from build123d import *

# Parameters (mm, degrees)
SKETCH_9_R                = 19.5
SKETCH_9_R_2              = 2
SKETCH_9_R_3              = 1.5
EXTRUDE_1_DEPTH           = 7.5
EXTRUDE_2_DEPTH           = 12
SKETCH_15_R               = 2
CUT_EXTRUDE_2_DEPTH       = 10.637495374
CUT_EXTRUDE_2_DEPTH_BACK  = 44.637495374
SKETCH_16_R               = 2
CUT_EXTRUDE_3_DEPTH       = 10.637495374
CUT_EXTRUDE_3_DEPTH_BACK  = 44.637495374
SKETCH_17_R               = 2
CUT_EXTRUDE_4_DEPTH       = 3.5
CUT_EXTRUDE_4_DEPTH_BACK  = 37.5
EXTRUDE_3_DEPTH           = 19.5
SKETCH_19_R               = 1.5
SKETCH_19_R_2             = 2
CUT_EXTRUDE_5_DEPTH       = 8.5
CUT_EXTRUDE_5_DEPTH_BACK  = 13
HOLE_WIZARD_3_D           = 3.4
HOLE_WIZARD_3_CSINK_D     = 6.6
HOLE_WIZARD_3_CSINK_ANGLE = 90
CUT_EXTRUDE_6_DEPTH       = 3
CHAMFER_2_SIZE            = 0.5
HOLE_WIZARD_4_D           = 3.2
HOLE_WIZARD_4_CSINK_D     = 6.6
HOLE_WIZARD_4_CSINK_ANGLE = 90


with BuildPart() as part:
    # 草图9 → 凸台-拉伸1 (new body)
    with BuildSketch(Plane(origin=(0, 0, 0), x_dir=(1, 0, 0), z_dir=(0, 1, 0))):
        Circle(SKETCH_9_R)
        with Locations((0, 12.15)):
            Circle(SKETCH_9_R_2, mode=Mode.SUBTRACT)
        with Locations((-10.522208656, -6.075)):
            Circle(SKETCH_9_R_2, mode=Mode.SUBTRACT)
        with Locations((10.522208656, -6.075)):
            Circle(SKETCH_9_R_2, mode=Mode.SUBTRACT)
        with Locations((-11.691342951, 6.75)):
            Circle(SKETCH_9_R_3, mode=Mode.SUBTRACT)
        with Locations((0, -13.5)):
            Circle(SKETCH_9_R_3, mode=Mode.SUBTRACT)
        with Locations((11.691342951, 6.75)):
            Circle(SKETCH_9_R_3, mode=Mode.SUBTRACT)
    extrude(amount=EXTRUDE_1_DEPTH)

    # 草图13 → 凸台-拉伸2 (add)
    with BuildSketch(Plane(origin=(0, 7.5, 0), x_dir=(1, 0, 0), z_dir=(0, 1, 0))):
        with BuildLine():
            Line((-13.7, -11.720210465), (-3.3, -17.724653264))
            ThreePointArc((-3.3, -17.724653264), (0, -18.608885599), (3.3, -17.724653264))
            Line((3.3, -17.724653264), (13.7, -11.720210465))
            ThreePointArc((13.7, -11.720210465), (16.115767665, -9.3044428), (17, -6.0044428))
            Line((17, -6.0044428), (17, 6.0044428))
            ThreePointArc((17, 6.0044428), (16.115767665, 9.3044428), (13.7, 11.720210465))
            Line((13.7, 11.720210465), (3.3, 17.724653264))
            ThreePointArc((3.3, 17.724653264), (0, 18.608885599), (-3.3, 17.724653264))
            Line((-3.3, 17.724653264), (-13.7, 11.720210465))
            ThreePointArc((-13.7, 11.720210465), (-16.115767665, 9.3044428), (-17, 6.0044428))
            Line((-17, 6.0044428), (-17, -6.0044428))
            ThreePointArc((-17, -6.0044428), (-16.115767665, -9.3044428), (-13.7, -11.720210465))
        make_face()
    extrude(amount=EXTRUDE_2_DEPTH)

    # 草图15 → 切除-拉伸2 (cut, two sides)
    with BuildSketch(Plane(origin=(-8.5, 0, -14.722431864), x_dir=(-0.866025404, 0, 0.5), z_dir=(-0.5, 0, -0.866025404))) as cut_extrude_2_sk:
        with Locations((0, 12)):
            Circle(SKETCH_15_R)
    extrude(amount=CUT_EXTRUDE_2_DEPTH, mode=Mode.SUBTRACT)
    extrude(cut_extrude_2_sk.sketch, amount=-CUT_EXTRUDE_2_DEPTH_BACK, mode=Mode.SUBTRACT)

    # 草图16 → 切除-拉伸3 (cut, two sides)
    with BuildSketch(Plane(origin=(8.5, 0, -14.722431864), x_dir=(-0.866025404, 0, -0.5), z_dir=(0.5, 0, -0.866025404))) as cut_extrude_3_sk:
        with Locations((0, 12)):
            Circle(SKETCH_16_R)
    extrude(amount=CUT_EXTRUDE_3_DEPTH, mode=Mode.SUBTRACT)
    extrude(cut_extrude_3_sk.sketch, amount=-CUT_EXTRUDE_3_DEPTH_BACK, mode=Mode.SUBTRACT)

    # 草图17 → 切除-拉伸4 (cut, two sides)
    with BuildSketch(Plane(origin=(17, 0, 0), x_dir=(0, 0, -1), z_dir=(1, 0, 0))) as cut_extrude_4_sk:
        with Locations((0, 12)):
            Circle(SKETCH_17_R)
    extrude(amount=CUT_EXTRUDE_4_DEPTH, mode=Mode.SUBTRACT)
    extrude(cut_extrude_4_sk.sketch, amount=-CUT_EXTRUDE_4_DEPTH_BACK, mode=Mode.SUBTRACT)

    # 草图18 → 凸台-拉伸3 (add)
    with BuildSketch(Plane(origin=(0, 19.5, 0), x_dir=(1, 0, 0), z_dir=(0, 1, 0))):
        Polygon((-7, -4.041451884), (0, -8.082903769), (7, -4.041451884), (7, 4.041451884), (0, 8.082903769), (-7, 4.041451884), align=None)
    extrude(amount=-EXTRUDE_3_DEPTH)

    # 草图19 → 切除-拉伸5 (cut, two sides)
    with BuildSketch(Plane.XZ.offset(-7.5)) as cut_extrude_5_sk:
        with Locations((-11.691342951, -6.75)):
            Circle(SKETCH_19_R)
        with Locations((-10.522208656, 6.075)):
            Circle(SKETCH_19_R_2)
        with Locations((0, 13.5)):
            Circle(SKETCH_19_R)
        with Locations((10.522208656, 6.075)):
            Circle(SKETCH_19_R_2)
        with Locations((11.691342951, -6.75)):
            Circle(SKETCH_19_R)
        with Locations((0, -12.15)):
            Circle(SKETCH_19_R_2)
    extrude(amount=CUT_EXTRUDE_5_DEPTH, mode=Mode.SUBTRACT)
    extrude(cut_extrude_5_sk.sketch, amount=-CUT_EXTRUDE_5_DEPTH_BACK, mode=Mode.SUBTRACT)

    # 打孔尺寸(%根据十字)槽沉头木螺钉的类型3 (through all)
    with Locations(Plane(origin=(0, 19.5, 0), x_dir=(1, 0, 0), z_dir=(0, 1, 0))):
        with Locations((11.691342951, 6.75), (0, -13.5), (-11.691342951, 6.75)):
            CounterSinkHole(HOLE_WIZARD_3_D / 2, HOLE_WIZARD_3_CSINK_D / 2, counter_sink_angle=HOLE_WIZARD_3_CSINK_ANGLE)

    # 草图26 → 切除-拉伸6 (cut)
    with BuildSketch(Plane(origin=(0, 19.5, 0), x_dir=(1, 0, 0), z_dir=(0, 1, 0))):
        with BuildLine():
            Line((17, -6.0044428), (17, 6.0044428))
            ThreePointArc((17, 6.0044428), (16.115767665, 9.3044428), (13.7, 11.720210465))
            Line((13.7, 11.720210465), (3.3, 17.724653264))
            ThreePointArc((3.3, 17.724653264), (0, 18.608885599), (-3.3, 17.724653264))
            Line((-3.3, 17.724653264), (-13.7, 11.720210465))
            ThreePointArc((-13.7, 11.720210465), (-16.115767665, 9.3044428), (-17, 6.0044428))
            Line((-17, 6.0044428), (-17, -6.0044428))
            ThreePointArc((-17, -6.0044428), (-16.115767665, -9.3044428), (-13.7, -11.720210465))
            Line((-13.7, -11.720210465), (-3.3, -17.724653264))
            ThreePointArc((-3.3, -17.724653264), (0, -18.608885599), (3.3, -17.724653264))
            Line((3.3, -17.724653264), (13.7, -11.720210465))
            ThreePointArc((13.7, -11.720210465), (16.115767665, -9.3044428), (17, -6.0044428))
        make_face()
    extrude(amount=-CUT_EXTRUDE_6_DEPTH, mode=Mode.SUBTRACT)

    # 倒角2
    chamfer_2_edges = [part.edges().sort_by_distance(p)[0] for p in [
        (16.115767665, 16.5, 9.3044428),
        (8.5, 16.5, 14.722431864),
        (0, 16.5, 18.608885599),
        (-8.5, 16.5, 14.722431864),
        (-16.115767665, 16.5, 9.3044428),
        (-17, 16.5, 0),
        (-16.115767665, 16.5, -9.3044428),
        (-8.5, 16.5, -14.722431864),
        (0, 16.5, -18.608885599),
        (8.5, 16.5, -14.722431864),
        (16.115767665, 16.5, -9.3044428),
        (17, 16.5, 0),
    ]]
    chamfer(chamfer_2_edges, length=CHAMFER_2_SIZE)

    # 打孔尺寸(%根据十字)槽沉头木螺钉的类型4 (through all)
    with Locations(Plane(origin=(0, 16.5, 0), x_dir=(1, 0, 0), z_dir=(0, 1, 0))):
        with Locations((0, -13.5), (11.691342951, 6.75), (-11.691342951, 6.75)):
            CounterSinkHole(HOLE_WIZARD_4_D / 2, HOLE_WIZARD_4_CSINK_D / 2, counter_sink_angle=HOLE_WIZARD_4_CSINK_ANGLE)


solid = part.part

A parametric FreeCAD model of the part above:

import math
import FreeCAD as App
import Part
import Sketcher
from FreeCAD import Vector
Q = App.Units.Quantity


def edges_at(feature, points):
    """Names of the edges that pass closest to the given points."""
    edges = feature.Shape.Edges
    near = lambda p: min(range(len(edges)), key=lambda i: edges[i].distToShape(Part.Vertex(*p))[0])
    return sorted({f"Edge{near(p) + 1}" for p in points})


def add_polygon(sketch, points):
    """Adds a closed chain of lines whose ends are joined by coincident constraints."""
    first, n = sketch.GeometryCount, len(points)
    for a, b in zip(points, points[1:] + points[:1]):
        sketch.addGeometry(Part.LineSegment(App.Vector(*a, 0), App.Vector(*b, 0)), False)
    for i in range(n):
        sketch.addConstraint(Sketcher.Constraint("Coincident", first + i, 2, first + (i + 1) % n, 1))

doc = App.newDocument("Part")
params = doc.addObject("Spreadsheet::Sheet", "Params")
for row, (alias, value) in enumerate([
    ("sketch1_diameter", "39 mm"),
    ("sketch1_diameter2", "4 mm"),
    ("sketch1_diameter3", "3 mm"),
    ("pad1_length", "7.5 mm"),
    ("sketch2_radius", "6.6 mm"),
    ("pad2_length", "12 mm"),
    ("sketch3_diameter", "4 mm"),
    ("sketch4_diameter", "4 mm"),
    ("sketch5_diameter", "4 mm"),
    ("pad3_length", "19.5 mm"),
    ("sketch7_diameter", "3 mm"),
    ("sketch7_diameter2", "4 mm"),
    ("sketch8_diameter", "3.4 mm"),
    ("hole_diameter", "3.4 mm"),
    ("hole_csink_diameter", "6.6 mm"),
    ("sketch9_radius", "6.6 mm"),
    ("pocket5_length", "3 mm"),
    ("chamfer_size", "0.5 mm"),
    ("sketch10_diameter", "3.2 mm"),
    ("hole2_diameter", "3.2 mm"),
    ("hole2_csink_diameter", "6.6 mm"),
], start=1):
    params.set(f"A{row}", alias)
    params.set(f"B{row}", "=" + value)
    params.setAlias(f"B{row}", alias)

body = doc.addObject("PartDesign::Body", "Body")

# Sketch on XZ plane
sketch1 = doc.addObject("Sketcher::SketchObject", "Sketch")
body.addObject(sketch1)
sketch1.AttachmentSupport = (doc.XZ_Plane, [""])
sketch1.MapMode = "FlatFace"
sketch1.addGeometry([
    Part.Circle(Vector(0, 0, 0), Vector(0, 0, 1), 19.5),  # 0
    Part.Circle(Vector(-10.5, 6.1, 0), Vector(0, 0, 1), 2),  # 1
    Part.Circle(Vector(0, 13.5, 0), Vector(0, 0, 1), 1.5),  # 2
    Part.Circle(Vector(10.5, 6.1, 0), Vector(0, 0, 1), 2),  # 3
    Part.Circle(Vector(-11.7, -6.8, 0), Vector(0, 0, 1), 1.5),  # 4
    Part.Circle(Vector(11.7, -6.8, 0), Vector(0, 0, 1), 1.5),  # 5
    Part.Circle(Vector(0, -12.2, 0), Vector(0, 0, 1), 2),  # 6
], False)
sketch1.addConstraint([
    Sketcher.Constraint("Coincident", 0, 3, -1, 1),
    Sketcher.Constraint("Equal", 1, 3),
    Sketcher.Constraint("Equal", 2, 4),
    Sketcher.Constraint("Equal", 4, 5),
    Sketcher.Constraint("Equal", 3, 6),
    Sketcher.Constraint("Symmetric", 1, 3, 3, 3, -2),
    Sketcher.Constraint("Symmetric", 4, 3, 5, 3, -2),
    Sketcher.Constraint("PointOnObject", 2, 3, -2),
    Sketcher.Constraint("PointOnObject", 6, 3, -2),
    Sketcher.Constraint("Diameter", 0, 39.0),
    Sketcher.Constraint("Diameter", 1, 4.0),
    Sketcher.Constraint("Diameter", 2, 3.0),
    Sketcher.Constraint("DistanceY", -1, 1, 2, 3, 13.5),
    Sketcher.Constraint("DistanceY", 6, 3, 4, 3, 5.4),
    Sketcher.Constraint("DistanceY", 4, 3, -1, 1, 6.75),
    Sketcher.Constraint("DistanceY", -1, 1, 1, 3, 6.075),
    Sketcher.Constraint("DistanceX", 1, 3, -1, 1, 10.522209),
    Sketcher.Constraint("DistanceX", 4, 3, 3, 3, 22.213552),
])
sketch1.setExpression("Constraints[9]", "Params.sketch1_diameter")
sketch1.setExpression("Constraints[10]", "Params.sketch1_diameter2")
sketch1.setExpression("Constraints[11]", "Params.sketch1_diameter3")
pad1 = doc.addObject("PartDesign::Pad", "Pad")
body.addObject(pad1)
pad1.Profile = sketch1
pad1.setExpression("Length", "Params.pad1_length")
pad1.Reversed = True

# Sketch on XZ plane
sketch2 = doc.addObject("Sketcher::SketchObject", "Sketch001")
body.addObject(sketch2)
sketch2.AttachmentSupport = (doc.XZ_Plane, [""])
sketch2.MapMode = "FlatFace"
sketch2.AttachmentOffset = App.Placement(Vector(0, 0, -7.5), App.Rotation())
sketch2.addGeometry([
    Part.LineSegment(Vector(-14, 12, 0), Vector(-3, 18, 0)),  # 0
    Part.ArcOfCircle(Part.Circle(Vector(0, 12, 0), Vector(0, 0, 1), 7), math.radians(60), math.radians(120)),  # 1
    Part.LineSegment(Vector(3, 18, 0), Vector(14, 12, 0)),  # 2
    Part.ArcOfCircle(Part.Circle(Vector(10, 6, 0), Vector(0, 0, 1), 7), math.radians(0), math.radians(60)),  # 3
    Part.LineSegment(Vector(17, 6, 0), Vector(17, -6, 0)),  # 4
    Part.ArcOfCircle(Part.Circle(Vector(10, -6, 0), Vector(0, 0, 1), 7), math.radians(-60), math.radians(0)),  # 5
    Part.LineSegment(Vector(14, -12, 0), Vector(3, -18, 0)),  # 6
    Part.ArcOfCircle(Part.Circle(Vector(0, -12, 0), Vector(0, 0, 1), 7), math.radians(-120), math.radians(-60)),  # 7
    Part.LineSegment(Vector(-3, -18, 0), Vector(-14, -12, 0)),  # 8
    Part.ArcOfCircle(Part.Circle(Vector(-10, -6, 0), Vector(0, 0, 1), 7), math.radians(180), math.radians(240)),  # 9
    Part.LineSegment(Vector(-17, -6, 0), Vector(-17, 6, 0)),  # 10
    Part.ArcOfCircle(Part.Circle(Vector(-10, 6, 0), Vector(0, 0, 1), 7), math.radians(120), math.radians(180)),  # 11
], False)
sketch2.addConstraint([
    Sketcher.Constraint("Tangent", 0, 2, 1, 2),
    Sketcher.Constraint("Tangent", 1, 1, 2, 1),
    Sketcher.Constraint("Tangent", 2, 2, 3, 2),
    Sketcher.Constraint("Tangent", 3, 1, 4, 1),
    Sketcher.Constraint("Tangent", 4, 2, 5, 2),
    Sketcher.Constraint("Tangent", 5, 1, 6, 1),
    Sketcher.Constraint("Tangent", 6, 2, 7, 2),
    Sketcher.Constraint("Tangent", 7, 1, 8, 1),
    Sketcher.Constraint("Tangent", 8, 2, 9, 2),
    Sketcher.Constraint("Tangent", 9, 1, 10, 1),
    Sketcher.Constraint("Tangent", 10, 2, 11, 2),
    Sketcher.Constraint("Tangent", 11, 1, 0, 1),
    Sketcher.Constraint("Vertical", 4),
    Sketcher.Constraint("Vertical", 10),
    Sketcher.Constraint("Equal", 1, 3),
    Sketcher.Constraint("Equal", 3, 5),
    Sketcher.Constraint("Equal", 5, 7),
    Sketcher.Constraint("Equal", 7, 9),
    Sketcher.Constraint("Equal", 9, 11),
    Sketcher.Constraint("Symmetric", 1, 3, 7, 3, -1, 1),
    Sketcher.Constraint("Symmetric", 3, 3, 9, 3, -1, 1),
    Sketcher.Constraint("Symmetric", 0, 2, 1, 1, -2),
    Sketcher.Constraint("Parallel", 0, 6),
    Sketcher.Constraint("Radius", 1, 6.6),
    Sketcher.Constraint("Angle", 0, Q("30 deg")),
    Sketcher.Constraint("DistanceX", -1, 1, 3, 1, 17.0),
    Sketcher.Constraint("DistanceY", 4, 2, 4, 1, 12.008886),
])
sketch2.setExpression("Constraints[23]", "Params.sketch2_radius")
pad2 = doc.addObject("PartDesign::Pad", "Pad001")
body.addObject(pad2)
pad2.Profile = sketch2
pad2.setExpression("Length", "Params.pad2_length")
pad2.Reversed = True

# Sketch on an angled plane
sketch3 = doc.addObject("Sketcher::SketchObject", "Sketch002")
body.addObject(sketch3)
sketch3.Placement = App.Placement(Vector(-8.5, 0, -14.722432), App.Rotation(Vector(-0.866025404, 0, 0.5), Vector(0, 1, 0), Vector(-0.5, 0, -0.866025404), "ZXY"))
sketch3.addGeometry(Part.Circle(Vector(0, 12, 0), Vector(0, 0, 1), 2), False)
sketch3.addConstraint([
    Sketcher.Constraint("PointOnObject", 0, 3, -2),
    Sketcher.Constraint("Diameter", 0, 4.0),
    Sketcher.Constraint("DistanceY", -1, 1, 0, 3, 12.0),
])
sketch3.setExpression("Constraints[1]", "Params.sketch3_diameter")
pocket1 = doc.addObject("PartDesign::Pocket", "Pocket")
body.addObject(pocket1)
pocket1.Profile = sketch3
pocket1.Type = "ThroughAll"
pocket1.Midplane = True

# Sketch on an angled plane
sketch4 = doc.addObject("Sketcher::SketchObject", "Sketch003")
body.addObject(sketch4)
sketch4.Placement = App.Placement(Vector(8.5, 0, -14.722432), App.Rotation(Vector(-0.866025404, 0, -0.5), Vector(0, 1, 0), Vector(0.5, 0, -0.866025404), "ZXY"))
sketch4.addGeometry(Part.Circle(Vector(0, 12, 0), Vector(0, 0, 1), 2), False)
sketch4.addConstraint([
    Sketcher.Constraint("PointOnObject", 0, 3, -2),
    Sketcher.Constraint("Diameter", 0, 4.0),
    Sketcher.Constraint("DistanceY", -1, 1, 0, 3, 12.0),
])
sketch4.setExpression("Constraints[1]", "Params.sketch4_diameter")
pocket2 = doc.addObject("PartDesign::Pocket", "Pocket001")
body.addObject(pocket2)
pocket2.Profile = sketch4
pocket2.Type = "ThroughAll"
pocket2.Midplane = True

# Sketch on YZ plane
sketch5 = doc.addObject("Sketcher::SketchObject", "Sketch004")
body.addObject(sketch5)
sketch5.AttachmentSupport = (doc.YZ_Plane, [""])
sketch5.MapMode = "FlatFace"
sketch5.AttachmentOffset = App.Placement(Vector(0, 0, 17), App.Rotation())
sketch5.addGeometry(Part.Circle(Vector(12, 0, 0), Vector(0, 0, 1), 2), False)
sketch5.addConstraint([
    Sketcher.Constraint("PointOnObject", 0, 3, -1),
    Sketcher.Constraint("Diameter", 0, 4.0),
    Sketcher.Constraint("DistanceX", -1, 1, 0, 3, 12.0),
])
sketch5.setExpression("Constraints[1]", "Params.sketch5_diameter")
pocket3 = doc.addObject("PartDesign::Pocket", "Pocket002")
body.addObject(pocket3)
pocket3.Profile = sketch5
pocket3.Type = "ThroughAll"
pocket3.Midplane = True

# Sketch on XZ plane
sketch6 = doc.addObject("Sketcher::SketchObject", "Sketch005")
body.addObject(sketch6)
sketch6.AttachmentSupport = (doc.XZ_Plane, [""])
sketch6.MapMode = "FlatFace"
sketch6.AttachmentOffset = App.Placement(Vector(0, 0, -19.5), App.Rotation())
add_polygon(sketch6, [(-7, 4), (0, 8), (7, 4), (7, -4), (0, -8), (-7, -4)])  # lines 0-5
sketch6.addConstraint([
    Sketcher.Constraint("Vertical", 2),
    Sketcher.Constraint("Vertical", 5),
    Sketcher.Constraint("Symmetric", 0, 2, 3, 2, -1, 1),
    Sketcher.Constraint("Symmetric", 1, 2, 4, 2, -1, 1),
    Sketcher.Constraint("PointOnObject", 0, 2, -2),
    Sketcher.Constraint("Parallel", 0, 3),
    Sketcher.Constraint("Horizontal", 2, 2, 4, 2),
    Sketcher.Constraint("Angle", 0, Q("30 deg")),
    Sketcher.Constraint("DistanceX", -1, 1, 1, 2, 7.0),
    Sketcher.Constraint("DistanceY", 2, 2, 2, 1, 8.082904),
])
pad3 = doc.addObject("PartDesign::Pad", "Pad002")
body.addObject(pad3)
pad3.Profile = sketch6
pad3.setExpression("Length", "Params.pad3_length")

# Sketch on XZ plane
sketch7 = doc.addObject("Sketcher::SketchObject", "Sketch006")
body.addObject(sketch7)
sketch7.AttachmentSupport = (doc.XZ_Plane, [""])
sketch7.MapMode = "FlatFace"
sketch7.AttachmentOffset = App.Placement(Vector(0, 0, -7.5), App.Rotation())
sketch7.addGeometry([
    Part.Circle(Vector(-11.7, -6.8, 0), Vector(0, 0, 1), 1.5),  # 0
    Part.Circle(Vector(-10.5, 6.1, 0), Vector(0, 0, 1), 2),  # 1
    Part.Circle(Vector(0, 13.5, 0), Vector(0, 0, 1), 1.5),  # 2
    Part.Circle(Vector(10.5, 6.1, 0), Vector(0, 0, 1), 2),  # 3
    Part.Circle(Vector(11.7, -6.8, 0), Vector(0, 0, 1), 1.5),  # 4
    Part.Circle(Vector(0, -12.2, 0), Vector(0, 0, 1), 2),  # 5
], False)
sketch7.addConstraint([
    Sketcher.Constraint("Equal", 0, 2),
    Sketcher.Constraint("Equal", 1, 3),
    Sketcher.Constraint("Equal", 2, 4),
    Sketcher.Constraint("Equal", 3, 5),
    Sketcher.Constraint("Symmetric", 1, 3, 3, 3, -2),
    Sketcher.Constraint("Symmetric", 0, 3, 4, 3, -2),
    Sketcher.Constraint("PointOnObject", 2, 3, -2),
    Sketcher.Constraint("PointOnObject", 5, 3, -2),
    Sketcher.Constraint("Diameter", 0, 3.0),
    Sketcher.Constraint("Diameter", 1, 4.0),
    Sketcher.Constraint("DistanceY", -1, 1, 2, 3, 13.5),
    Sketcher.Constraint("DistanceY", 5, 3, 0, 3, 5.4),
    Sketcher.Constraint("DistanceY", 0, 3, -1, 1, 6.75),
    Sketcher.Constraint("DistanceY", -1, 1, 1, 3, 6.075),
    Sketcher.Constraint("DistanceX", 1, 3, -1, 1, 10.522209),
    Sketcher.Constraint("DistanceX", 0, 3, 3, 3, 22.213552),
])
sketch7.setExpression("Constraints[8]", "Params.sketch7_diameter")
sketch7.setExpression("Constraints[9]", "Params.sketch7_diameter2")
pocket4 = doc.addObject("PartDesign::Pocket", "Pocket003")
body.addObject(pocket4)
pocket4.Profile = sketch7
pocket4.Type = "ThroughAll"
pocket4.Midplane = True

# Sketch on XZ plane
sketch8 = doc.addObject("Sketcher::SketchObject", "Sketch007")
body.addObject(sketch8)
sketch8.AttachmentSupport = (doc.XZ_Plane, [""])
sketch8.MapMode = "FlatFace"
sketch8.AttachmentOffset = App.Placement(Vector(0, 0, -19.5), App.Rotation())
sketch8.addGeometry([
    Part.Circle(Vector(11.7, -6.8, 0), Vector(0, 0, 1), 1.7),
    Part.Circle(Vector(0, 13.5, 0), Vector(0, 0, 1), 1.7),
    Part.Circle(Vector(-11.7, -6.8, 0), Vector(0, 0, 1), 1.7),
], False)
sketch8.addConstraint([
    Sketcher.Constraint("Equal", 0, 1),
    Sketcher.Constraint("Equal", 1, 2),
    Sketcher.Constraint("Symmetric", 0, 3, 2, 3, -2),
    Sketcher.Constraint("PointOnObject", 1, 3, -2),
    Sketcher.Constraint("Diameter", 0, 3.4),
    Sketcher.Constraint("DistanceY", -1, 1, 1, 3, 13.5),
    Sketcher.Constraint("DistanceY", 0, 3, -1, 1, 6.75),
    Sketcher.Constraint("DistanceX", -1, 1, 0, 3, 11.691343),
])
sketch8.setExpression("Constraints[4]", "Params.sketch8_diameter")
doc.recompute()
hole = doc.addObject("PartDesign::Hole", "Hole")
body.addObject(hole)
hole.Profile = sketch8
hole.ThreadType = "None"
hole.setExpression("Diameter", "Params.hole_diameter")
hole.DepthType = "ThroughAll"
hole.HoleCutType = "Countersink"
hole.setExpression("HoleCutDiameter", "Params.hole_csink_diameter")
hole.HoleCutCountersinkAngle = 90
hole.Reversed = True

# Sketch on XZ plane
sketch9 = doc.addObject("Sketcher::SketchObject", "Sketch008")
body.addObject(sketch9)
sketch9.AttachmentSupport = (doc.XZ_Plane, [""])
sketch9.MapMode = "FlatFace"
sketch9.AttachmentOffset = App.Placement(Vector(0, 0, -19.5), App.Rotation())
sketch9.addGeometry([
    Part.LineSegment(Vector(17, 6, 0), Vector(17, -6, 0)),  # 0
    Part.ArcOfCircle(Part.Circle(Vector(10, -6, 0), Vector(0, 0, 1), 7), math.radians(-60), math.radians(0)),  # 1
    Part.LineSegment(Vector(14, -12, 0), Vector(3, -18, 0)),  # 2
    Part.ArcOfCircle(Part.Circle(Vector(0, -12, 0), Vector(0, 0, 1), 7), math.radians(-120), math.radians(-60)),  # 3
    Part.LineSegment(Vector(-3, -18, 0), Vector(-14, -12, 0)),  # 4
    Part.ArcOfCircle(Part.Circle(Vector(-10, -6, 0), Vector(0, 0, 1), 7), math.radians(180), math.radians(240)),  # 5
    Part.LineSegment(Vector(-17, -6, 0), Vector(-17, 6, 0)),  # 6
    Part.ArcOfCircle(Part.Circle(Vector(-10, 6, 0), Vector(0, 0, 1), 7), math.radians(120), math.radians(180)),  # 7
    Part.LineSegment(Vector(-14, 12, 0), Vector(-3, 18, 0)),  # 8
    Part.ArcOfCircle(Part.Circle(Vector(0, 12, 0), Vector(0, 0, 1), 7), math.radians(60), math.radians(120)),  # 9
    Part.LineSegment(Vector(3, 18, 0), Vector(14, 12, 0)),  # 10
    Part.ArcOfCircle(Part.Circle(Vector(10, 6, 0), Vector(0, 0, 1), 7), math.radians(0), math.radians(60)),  # 11
], False)
sketch9.addConstraint([
    Sketcher.Constraint("Tangent", 0, 2, 1, 2),
    Sketcher.Constraint("Tangent", 1, 1, 2, 1),
    Sketcher.Constraint("Tangent", 2, 2, 3, 2),
    Sketcher.Constraint("Tangent", 3, 1, 4, 1),
    Sketcher.Constraint("Tangent", 4, 2, 5, 2),
    Sketcher.Constraint("Tangent", 5, 1, 6, 1),
    Sketcher.Constraint("Tangent", 6, 2, 7, 2),
    Sketcher.Constraint("Tangent", 7, 1, 8, 1),
    Sketcher.Constraint("Tangent", 8, 2, 9, 2),
    Sketcher.Constraint("Tangent", 9, 1, 10, 1),
    Sketcher.Constraint("Tangent", 10, 2, 11, 2),
    Sketcher.Constraint("Tangent", 11, 1, 0, 1),
    Sketcher.Constraint("Vertical", 0),
    Sketcher.Constraint("Vertical", 6),
    Sketcher.Constraint("Equal", 1, 3),
    Sketcher.Constraint("Equal", 3, 5),
    Sketcher.Constraint("Equal", 5, 7),
    Sketcher.Constraint("Equal", 7, 9),
    Sketcher.Constraint("Equal", 9, 11),
    Sketcher.Constraint("Symmetric", 1, 3, 7, 3, -1, 1),
    Sketcher.Constraint("Symmetric", 3, 3, 9, 3, -1, 1),
    Sketcher.Constraint("Symmetric", 2, 2, 3, 1, -2),
    Sketcher.Constraint("Parallel", 4, 10),
    Sketcher.Constraint("Radius", 1, 6.6),
    Sketcher.Constraint("Angle", 2, Q("-150 deg")),
    Sketcher.Constraint("DistanceX", -1, 1, 0, 2, 17.0),
    Sketcher.Constraint("DistanceY", 0, 2, 0, 1, 12.008886),
])
sketch9.setExpression("Constraints[23]", "Params.sketch9_radius")
pocket5 = doc.addObject("PartDesign::Pocket", "Pocket004")
body.addObject(pocket5)
pocket5.Profile = sketch9
pocket5.setExpression("Length", "Params.pocket5_length")
pocket5.Reversed = True
doc.recompute()

chamfer = doc.addObject("PartDesign::Chamfer", "Chamfer")
body.addObject(chamfer)
chamfer.Base = (pocket5, edges_at(pocket5, [
    (16.116, 16.5, 9.304),
    (8.5, 16.5, 14.722),
    (0, 16.5, 18.609),
    (-8.5, 16.5, 14.722),
    (-16.116, 16.5, 9.304),
    (-17, 16.5, 0),
    (-16.116, 16.5, -9.304),
    (-8.5, 16.5, -14.722),
    (0, 16.5, -18.609),
    (8.5, 16.5, -14.722),
    (16.116, 16.5, -9.304),
    (17, 16.5, 0),
]))
chamfer.setExpression("Size", "Params.chamfer_size")

# Sketch on XZ plane
sketch10 = doc.addObject("Sketcher::SketchObject", "Sketch009")
body.addObject(sketch10)
sketch10.AttachmentSupport = (doc.XZ_Plane, [""])
sketch10.MapMode = "FlatFace"
sketch10.AttachmentOffset = App.Placement(Vector(0, 0, -16.5), App.Rotation())
sketch10.addGeometry([
    Part.Circle(Vector(0, 13.5, 0), Vector(0, 0, 1), 1.6),
    Part.Circle(Vector(11.7, -6.8, 0), Vector(0, 0, 1), 1.6),
    Part.Circle(Vector(-11.7, -6.8, 0), Vector(0, 0, 1), 1.6),
], False)
sketch10.addConstraint([
    Sketcher.Constraint("Equal", 0, 1),
    Sketcher.Constraint("Equal", 1, 2),
    Sketcher.Constraint("Symmetric", 1, 3, 2, 3, -2),
    Sketcher.Constraint("PointOnObject", 0, 3, -2),
    Sketcher.Constraint("Diameter", 0, 3.2),
    Sketcher.Constraint("DistanceY", -1, 1, 0, 3, 13.5),
    Sketcher.Constraint("DistanceY", 1, 3, -1, 1, 6.75),
    Sketcher.Constraint("DistanceX", -1, 1, 1, 3, 11.691343),
])
sketch10.setExpression("Constraints[4]", "Params.sketch10_diameter")
doc.recompute()
hole2 = doc.addObject("PartDesign::Hole", "Hole001")
body.addObject(hole2)
hole2.Profile = sketch10
hole2.ThreadType = "None"
hole2.setExpression("Diameter", "Params.hole2_diameter")
hole2.DepthType = "ThroughAll"
hole2.HoleCutType = "Countersink"
hole2.setExpression("HoleCutDiameter", "Params.hole2_csink_diameter")
hole2.HoleCutCountersinkAngle = 90
hole2.Reversed = True

doc.recompute()
